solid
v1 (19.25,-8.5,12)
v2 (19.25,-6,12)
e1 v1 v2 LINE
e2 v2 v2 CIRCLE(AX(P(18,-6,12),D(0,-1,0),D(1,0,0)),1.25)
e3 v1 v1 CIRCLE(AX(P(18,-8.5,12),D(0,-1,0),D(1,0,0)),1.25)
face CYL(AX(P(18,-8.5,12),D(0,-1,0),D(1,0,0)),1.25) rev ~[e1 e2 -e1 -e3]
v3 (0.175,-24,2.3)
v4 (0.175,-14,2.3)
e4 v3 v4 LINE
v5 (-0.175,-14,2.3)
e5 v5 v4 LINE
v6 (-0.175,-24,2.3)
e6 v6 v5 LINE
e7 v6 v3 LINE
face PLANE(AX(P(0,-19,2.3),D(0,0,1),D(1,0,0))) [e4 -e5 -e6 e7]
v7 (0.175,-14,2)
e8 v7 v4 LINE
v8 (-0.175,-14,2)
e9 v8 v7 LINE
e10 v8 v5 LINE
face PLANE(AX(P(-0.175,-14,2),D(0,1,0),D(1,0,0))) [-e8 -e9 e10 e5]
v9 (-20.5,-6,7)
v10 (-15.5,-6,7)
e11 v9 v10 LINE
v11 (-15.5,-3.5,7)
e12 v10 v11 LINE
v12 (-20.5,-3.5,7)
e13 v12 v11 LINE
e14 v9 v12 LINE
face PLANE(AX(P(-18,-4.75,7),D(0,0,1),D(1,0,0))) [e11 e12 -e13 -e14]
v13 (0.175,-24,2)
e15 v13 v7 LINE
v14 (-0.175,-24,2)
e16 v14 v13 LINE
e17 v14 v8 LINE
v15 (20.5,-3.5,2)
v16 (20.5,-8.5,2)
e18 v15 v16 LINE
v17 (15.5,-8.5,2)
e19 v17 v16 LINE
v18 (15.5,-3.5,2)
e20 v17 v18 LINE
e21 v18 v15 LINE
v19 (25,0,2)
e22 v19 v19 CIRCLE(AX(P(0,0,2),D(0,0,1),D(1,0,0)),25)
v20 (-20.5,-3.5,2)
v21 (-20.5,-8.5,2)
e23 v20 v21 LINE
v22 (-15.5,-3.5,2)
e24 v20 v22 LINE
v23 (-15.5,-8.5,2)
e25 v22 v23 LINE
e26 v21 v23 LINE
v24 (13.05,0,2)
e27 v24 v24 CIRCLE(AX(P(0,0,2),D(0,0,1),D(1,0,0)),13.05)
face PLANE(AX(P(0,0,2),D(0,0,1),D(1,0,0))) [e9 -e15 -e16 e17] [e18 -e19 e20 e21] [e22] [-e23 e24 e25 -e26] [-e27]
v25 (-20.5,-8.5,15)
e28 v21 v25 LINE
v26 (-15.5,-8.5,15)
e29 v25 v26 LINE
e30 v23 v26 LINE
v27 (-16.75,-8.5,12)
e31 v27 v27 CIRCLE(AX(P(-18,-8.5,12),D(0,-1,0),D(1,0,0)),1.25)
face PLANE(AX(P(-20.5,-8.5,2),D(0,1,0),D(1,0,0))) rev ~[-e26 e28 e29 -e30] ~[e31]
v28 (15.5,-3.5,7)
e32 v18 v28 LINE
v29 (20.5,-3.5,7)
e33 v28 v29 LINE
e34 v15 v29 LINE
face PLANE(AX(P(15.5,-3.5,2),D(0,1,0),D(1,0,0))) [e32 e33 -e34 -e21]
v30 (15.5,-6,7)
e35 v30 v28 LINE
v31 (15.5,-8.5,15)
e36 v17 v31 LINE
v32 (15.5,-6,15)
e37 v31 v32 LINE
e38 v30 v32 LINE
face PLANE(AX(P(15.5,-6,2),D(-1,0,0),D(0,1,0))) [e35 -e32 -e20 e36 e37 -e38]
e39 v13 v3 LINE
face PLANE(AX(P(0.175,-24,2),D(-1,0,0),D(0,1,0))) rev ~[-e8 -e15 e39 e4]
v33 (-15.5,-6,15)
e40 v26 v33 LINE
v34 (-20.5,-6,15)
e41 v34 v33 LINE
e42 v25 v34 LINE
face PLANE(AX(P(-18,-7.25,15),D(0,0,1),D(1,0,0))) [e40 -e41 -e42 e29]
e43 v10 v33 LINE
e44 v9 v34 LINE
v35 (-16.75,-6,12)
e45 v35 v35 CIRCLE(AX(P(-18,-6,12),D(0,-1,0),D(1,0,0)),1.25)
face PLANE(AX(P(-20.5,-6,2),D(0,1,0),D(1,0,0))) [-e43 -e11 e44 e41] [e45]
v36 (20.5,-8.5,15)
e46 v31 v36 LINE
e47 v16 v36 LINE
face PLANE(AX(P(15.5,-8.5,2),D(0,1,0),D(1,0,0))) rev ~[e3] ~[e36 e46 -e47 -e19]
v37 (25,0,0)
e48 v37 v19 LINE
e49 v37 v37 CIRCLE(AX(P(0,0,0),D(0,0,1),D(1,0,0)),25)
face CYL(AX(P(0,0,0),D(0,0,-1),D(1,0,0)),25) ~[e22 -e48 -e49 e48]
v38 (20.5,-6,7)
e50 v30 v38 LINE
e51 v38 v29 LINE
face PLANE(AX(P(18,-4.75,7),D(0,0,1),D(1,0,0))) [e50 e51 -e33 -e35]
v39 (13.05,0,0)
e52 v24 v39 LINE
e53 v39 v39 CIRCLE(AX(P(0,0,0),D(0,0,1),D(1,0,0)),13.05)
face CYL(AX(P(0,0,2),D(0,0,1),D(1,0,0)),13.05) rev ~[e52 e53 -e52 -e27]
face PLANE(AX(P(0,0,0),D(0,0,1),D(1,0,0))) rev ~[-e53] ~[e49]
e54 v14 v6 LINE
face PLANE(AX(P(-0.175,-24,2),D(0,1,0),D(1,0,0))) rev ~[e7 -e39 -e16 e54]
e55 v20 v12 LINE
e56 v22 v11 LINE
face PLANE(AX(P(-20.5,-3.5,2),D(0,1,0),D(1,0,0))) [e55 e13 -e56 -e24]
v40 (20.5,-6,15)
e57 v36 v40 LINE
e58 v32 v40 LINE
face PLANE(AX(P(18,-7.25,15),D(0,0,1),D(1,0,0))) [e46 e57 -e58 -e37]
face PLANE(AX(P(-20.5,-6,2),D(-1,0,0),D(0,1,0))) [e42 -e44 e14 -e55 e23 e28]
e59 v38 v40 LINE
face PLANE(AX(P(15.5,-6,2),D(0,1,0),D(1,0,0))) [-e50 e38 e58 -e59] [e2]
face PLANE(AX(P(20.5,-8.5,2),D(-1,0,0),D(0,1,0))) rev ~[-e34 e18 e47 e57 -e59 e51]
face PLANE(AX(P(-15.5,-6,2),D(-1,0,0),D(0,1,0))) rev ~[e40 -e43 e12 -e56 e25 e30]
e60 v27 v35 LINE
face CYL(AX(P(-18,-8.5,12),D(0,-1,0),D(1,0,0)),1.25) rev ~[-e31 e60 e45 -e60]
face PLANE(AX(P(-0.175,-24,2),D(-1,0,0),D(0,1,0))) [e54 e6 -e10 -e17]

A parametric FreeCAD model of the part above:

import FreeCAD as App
import Part
import Sketcher
Q = App.Units.Quantity


def add_polygon(sketch, points):
    """Adds a closed chain of lines whose ends are joined by coincident constraints."""
    first, n = sketch.GeometryCount, len(points)
    for a, b in zip(points, points[1:] + points[:1]):
        sketch.addGeometry(Part.LineSegment(App.Vector(*a, 0), App.Vector(*b, 0)), False)
    for i in range(n):
        sketch.addConstraint(Sketcher.Constraint("Coincident", first + i, 2, first + (i + 1) % n, 1))

doc = App.newDocument("Part")
params = doc.addObject("Spreadsheet::Sheet", "Params")
for row, (alias, value) in enumerate([
    ("sketch1_diameter", "50 mm"),
    ("pad1_length", "2 mm"),
    ("sketch2_diameter", "26.1 mm"),
    ("pocket1_length", "5 mm"),
    ("sketch3_width", "5 mm"),
    ("sketch3_height", "2.5 mm"),
    ("pad2_length", "13 mm"),
    ("sketch4_diameter", "2.5 mm"),
    ("pocket2_length", "5 mm"),
    ("sketch5_width", "5 mm"),
    ("sketch5_height", "2.5 mm"),
    ("pad3_length", "5 mm"),
    ("sketch6_height", "10 mm"),
    ("sketch6_width", "0.35 mm"),
    ("pad4_length", "0.3 mm"),
], start=1):
    params.set(f"A{row}", alias)
    params.set(f"B{row}", "=" + value)
    params.setAlias(f"B{row}", alias)

body = doc.addObject("PartDesign::Body", "Body")

# Sketch on XY plane
sketch1 = doc.addObject("Sketcher::SketchObject", "Sketch")
body.addObject(sketch1)
sketch1.AttachmentSupport = (doc.XY_Plane, [""])
sketch1.MapMode = "FlatFace"
sketch1.addGeometry(Part.Circle(App.Vector(0, 0, 0), App.Vector(0, 0, 1), 25), False)
sketch1.addConstraint(Sketcher.Constraint("Coincident", 0, 3, -1, 1))
sketch1.addConstraint(Sketcher.Constraint("Diameter", 0, Q("50 mm")))
sketch1.setExpression("Constraints[1]", "Params.sketch1_diameter")
pad1 = doc.addObject("PartDesign::Pad", "Pad")
body.addObject(pad1)
pad1.Profile = sketch1
pad1.setExpression("Length", "Params.pad1_length")

# Sketch on XY plane
sketch2 = doc.addObject("Sketcher::SketchObject", "Sketch001")
body.addObject(sketch2)
sketch2.AttachmentSupport = (doc.XY_Plane, [""])
sketch2.MapMode = "FlatFace"
sketch2.AttachmentOffset = App.Placement(App.Vector(0, 0, 2), App.Rotation())
sketch2.addGeometry(Part.Circle(App.Vector(0, 0, 0), App.Vector(0, 0, 1), 13.05), False)
sketch2.addConstraint(Sketcher.Constraint("Coincident", 0, 3, -1, 1))
sketch2.addConstraint(Sketcher.Constraint("Diameter", 0, Q("26.1 mm")))
sketch2.setExpression("Constraints[1]", "Params.sketch2_diameter")
pocket1 = doc.addObject("PartDesign::Pocket", "Pocket")
body.addObject(pocket1)
pocket1.Profile = sketch2
pocket1.setExpression("Length", "Params.pocket1_length")

# Sketch on XY plane
sketch3 = doc.addObject("Sketcher::SketchObject", "Sketch002")
body.addObject(sketch3)
sketch3.AttachmentSupport = (doc.XY_Plane, [""])
sketch3.MapMode = "FlatFace"
sketch3.AttachmentOffset = App.Placement(App.Vector(0, 0, 2), App.Rotation())
add_polygon(sketch3, [(-20.5, -6), (-20.5, -8.5), (-15.5, -8.5), (-15.5, -6)])  # lines 0-3
add_polygon(sketch3, [(15.5, -6), (15.5, -8.5), (20.5, -8.5), (20.5, -6)])  # lines 4-7
sketch3.addConstraint(Sketcher.Constraint("Vertical", 0))
sketch3.addConstraint(Sketcher.Constraint("Horizontal", 1))
sketch3.addConstraint(Sketcher.Constraint("Vertical", 2))
sketch3.addConstraint(Sketcher.Constraint("Horizontal", 3))
sketch3.addConstraint(Sketcher.Constraint("Vertical", 4))
sketch3.addConstraint(Sketcher.Constraint("Horizontal", 5))
sketch3.addConstraint(Sketcher.Constraint("Vertical", 6))
sketch3.addConstraint(Sketcher.Constraint("Horizontal", 7))
sketch3.addConstraint(Sketcher.Constraint("Symmetric", 1, 2, 4, 2, -2))
sketch3.addConstraint(Sketcher.Constraint("Symmetric", 3, 2, 6, 2, -2))
sketch3.addConstraint(Sketcher.Constraint("DistanceX", 1, 1, 1, 2, Q("5 mm")))
sketch3.addConstraint(Sketcher.Constraint("DistanceY", 0, 2, 0, 1, Q("2.5 mm")))
sketch3.addConstraint(Sketcher.Constraint("DistanceY", 2, 2, -1, 1, Q("6 mm")))
sketch3.addConstraint(Sketcher.Constraint("DistanceX", 1, 2, 4, 2, Q("31 mm")))
sketch3.setExpression("Constraints[18]", "Params.sketch3_width")
sketch3.setExpression("Constraints[19]", "Params.sketch3_height")
pad2 = doc.addObject("PartDesign::Pad", "Pad001")
body.addObject(pad2)
pad2.Profile = sketch3
pad2.setExpression("Length", "Params.pad2_length")

# Sketch on XZ plane
sketch4 = doc.addObject("Sketcher::SketchObject", "Sketch003")
body.addObject(sketch4)
sketch4.AttachmentSupport = (doc.XZ_Plane, [""])
sketch4.MapMode = "FlatFace"
sketch4.AttachmentOffset = App.Placement(App.Vector(0, 0, 8.5), App.Rotation())
sketch4.addGeometry(Part.Circle(App.Vector(-18, 12, 0), App.Vector(0, 0, 1), 1.25), False)
sketch4.addGeometry(Part.Circle(App.Vector(18, 12, 0), App.Vector(0, 0, 1), 1.25), False)
sketch4.addConstraint(Sketcher.Constraint("Equal", 0, 1))
sketch4.addConstraint(Sketcher.Constraint("Symmetric", 0, 3, 1, 3, -2))
sketch4.addConstraint(Sketcher.Constraint("Diameter", 0, Q("2.5 mm")))
sketch4.addConstraint(Sketcher.Constraint("DistanceX", 0, 3, -1, 1, Q("18 mm")))
sketch4.addConstraint(Sketcher.Constraint("DistanceY", -1, 1, 0, 3, Q("12 mm")))
sketch4.setExpression("Constraints[2]", "Params.sketch4_diameter")
pocket2 = doc.addObject("PartDesign::Pocket", "Pocket001")
body.addObject(pocket2)
pocket2.Profile = sketch4
pocket2.setExpression("Length", "Params.pocket2_length")

# Sketch on XY plane
sketch5 = doc.addObject("Sketcher::SketchObject", "Sketch004")
body.addObject(sketch5)
sketch5.AttachmentSupport = (doc.XY_Plane, [""])
sketch5.MapMode = "FlatFace"
sketch5.AttachmentOffset = App.Placement(App.Vector(0, 0, 2), App.Rotation())
add_polygon(sketch5, [(-20.5, -3.5), (-20.5, -6), (-15.5, -6), (-15.5, -3.5)])  # lines 0-3
add_polygon(sketch5, [(15.5, -3.5), (15.5, -6), (20.5, -6), (20.5, -3.5)])  # lines 4-7
sketch5.addConstraint(Sketcher.Constraint("Vertical", 0))
sketch5.addConstraint(Sketcher.Constraint("Horizontal", 1))
sketch5.addConstraint(Sketcher.Constraint("Vertical", 2))
sketch5.addConstraint(Sketcher.Constraint("Horizontal", 3))
sketch5.addConstraint(Sketcher.Constraint("Vertical", 4))
sketch5.addConstraint(Sketcher.Constraint("Horizontal", 5))
sketch5.addConstraint(Sketcher.Constraint("Vertical", 6))
sketch5.addConstraint(Sketcher.Constraint("Horizontal", 7))
sketch5.addConstraint(Sketcher.Constraint("Symmetric", 1, 2, 4, 2, -2))
sketch5.addConstraint(Sketcher.Constraint("Symmetric", 3, 2, 6, 2, -2))
sketch5.addConstraint(Sketcher.Constraint("DistanceX", 1, 1, 1, 2, Q("5 mm")))
sketch5.addConstraint(Sketcher.Constraint("DistanceY", 0, 2, 0, 1, Q("2.5 mm")))
sketch5.addConstraint(Sketcher.Constraint("DistanceY", 0, 2, -1, 1, Q("6 mm")))
sketch5.addConstraint(Sketcher.Constraint("DistanceX", 1, 2, 4, 2, Q("31 mm")))
sketch5.setExpression("Constraints[18]", "Params.sketch5_width")
sketch5.setExpression("Constraints[19]", "Params.sketch5_height")
pad3 = doc.addObject("PartDesign::Pad", "Pad002")
body.addObject(pad3)
pad3.Profile = sketch5
pad3.setExpression("Length", "Params.pad3_length")

# Sketch on XY plane
sketch6 = doc.addObject("Sketcher::SketchObject", "Sketch005")
body.addObject(sketch6)
sketch6.AttachmentSupport = (doc.XY_Plane, [""])
sketch6.MapMode = "FlatFace"
sketch6.AttachmentOffset = App.Placement(App.Vector(0, 0, 2), App.Rotation())
add_polygon(sketch6, [(-0.175, -14), (-0.175, -24), (0.175, -24), (0.175, -14)])  # lines 0-3
sketch6.addConstraint(Sketcher.Constraint("Vertical", 0))
sketch6.addConstraint(Sketcher.Constraint("Horizontal", 1))
sketch6.addConstraint(Sketcher.Constraint("Vertical", 2))
sketch6.addConstraint(Sketcher.Constraint("Horizontal", 3))
sketch6.addConstraint(Sketcher.Constraint("DistanceY", 0, 2, 0, 1, Q("10 mm")))
sketch6.addConstraint(Sketcher.Constraint("DistanceY", 0, 2, -1, 1, Q("24 mm")))
sketch6.addConstraint(Sketcher.Constraint("DistanceX", 1, 1, 1, 2, Q("0.35 mm")))
sketch6.addConstraint(Sketcher.Constraint("DistanceX", 0, 2, -1, 1, Q("0.175 mm")))
sketch6.setExpression("Constraints[8]", "Params.sketch6_height")
sketch6.setExpression("Constraints[10]", "Params.sketch6_width")
pad4 = doc.addObject("PartDesign::Pad", "Pad003")
body.addObject(pad4)
pad4.Profile = sketch6
pad4.setExpression("Length", "Params.pad4_length")

doc.recompute()
